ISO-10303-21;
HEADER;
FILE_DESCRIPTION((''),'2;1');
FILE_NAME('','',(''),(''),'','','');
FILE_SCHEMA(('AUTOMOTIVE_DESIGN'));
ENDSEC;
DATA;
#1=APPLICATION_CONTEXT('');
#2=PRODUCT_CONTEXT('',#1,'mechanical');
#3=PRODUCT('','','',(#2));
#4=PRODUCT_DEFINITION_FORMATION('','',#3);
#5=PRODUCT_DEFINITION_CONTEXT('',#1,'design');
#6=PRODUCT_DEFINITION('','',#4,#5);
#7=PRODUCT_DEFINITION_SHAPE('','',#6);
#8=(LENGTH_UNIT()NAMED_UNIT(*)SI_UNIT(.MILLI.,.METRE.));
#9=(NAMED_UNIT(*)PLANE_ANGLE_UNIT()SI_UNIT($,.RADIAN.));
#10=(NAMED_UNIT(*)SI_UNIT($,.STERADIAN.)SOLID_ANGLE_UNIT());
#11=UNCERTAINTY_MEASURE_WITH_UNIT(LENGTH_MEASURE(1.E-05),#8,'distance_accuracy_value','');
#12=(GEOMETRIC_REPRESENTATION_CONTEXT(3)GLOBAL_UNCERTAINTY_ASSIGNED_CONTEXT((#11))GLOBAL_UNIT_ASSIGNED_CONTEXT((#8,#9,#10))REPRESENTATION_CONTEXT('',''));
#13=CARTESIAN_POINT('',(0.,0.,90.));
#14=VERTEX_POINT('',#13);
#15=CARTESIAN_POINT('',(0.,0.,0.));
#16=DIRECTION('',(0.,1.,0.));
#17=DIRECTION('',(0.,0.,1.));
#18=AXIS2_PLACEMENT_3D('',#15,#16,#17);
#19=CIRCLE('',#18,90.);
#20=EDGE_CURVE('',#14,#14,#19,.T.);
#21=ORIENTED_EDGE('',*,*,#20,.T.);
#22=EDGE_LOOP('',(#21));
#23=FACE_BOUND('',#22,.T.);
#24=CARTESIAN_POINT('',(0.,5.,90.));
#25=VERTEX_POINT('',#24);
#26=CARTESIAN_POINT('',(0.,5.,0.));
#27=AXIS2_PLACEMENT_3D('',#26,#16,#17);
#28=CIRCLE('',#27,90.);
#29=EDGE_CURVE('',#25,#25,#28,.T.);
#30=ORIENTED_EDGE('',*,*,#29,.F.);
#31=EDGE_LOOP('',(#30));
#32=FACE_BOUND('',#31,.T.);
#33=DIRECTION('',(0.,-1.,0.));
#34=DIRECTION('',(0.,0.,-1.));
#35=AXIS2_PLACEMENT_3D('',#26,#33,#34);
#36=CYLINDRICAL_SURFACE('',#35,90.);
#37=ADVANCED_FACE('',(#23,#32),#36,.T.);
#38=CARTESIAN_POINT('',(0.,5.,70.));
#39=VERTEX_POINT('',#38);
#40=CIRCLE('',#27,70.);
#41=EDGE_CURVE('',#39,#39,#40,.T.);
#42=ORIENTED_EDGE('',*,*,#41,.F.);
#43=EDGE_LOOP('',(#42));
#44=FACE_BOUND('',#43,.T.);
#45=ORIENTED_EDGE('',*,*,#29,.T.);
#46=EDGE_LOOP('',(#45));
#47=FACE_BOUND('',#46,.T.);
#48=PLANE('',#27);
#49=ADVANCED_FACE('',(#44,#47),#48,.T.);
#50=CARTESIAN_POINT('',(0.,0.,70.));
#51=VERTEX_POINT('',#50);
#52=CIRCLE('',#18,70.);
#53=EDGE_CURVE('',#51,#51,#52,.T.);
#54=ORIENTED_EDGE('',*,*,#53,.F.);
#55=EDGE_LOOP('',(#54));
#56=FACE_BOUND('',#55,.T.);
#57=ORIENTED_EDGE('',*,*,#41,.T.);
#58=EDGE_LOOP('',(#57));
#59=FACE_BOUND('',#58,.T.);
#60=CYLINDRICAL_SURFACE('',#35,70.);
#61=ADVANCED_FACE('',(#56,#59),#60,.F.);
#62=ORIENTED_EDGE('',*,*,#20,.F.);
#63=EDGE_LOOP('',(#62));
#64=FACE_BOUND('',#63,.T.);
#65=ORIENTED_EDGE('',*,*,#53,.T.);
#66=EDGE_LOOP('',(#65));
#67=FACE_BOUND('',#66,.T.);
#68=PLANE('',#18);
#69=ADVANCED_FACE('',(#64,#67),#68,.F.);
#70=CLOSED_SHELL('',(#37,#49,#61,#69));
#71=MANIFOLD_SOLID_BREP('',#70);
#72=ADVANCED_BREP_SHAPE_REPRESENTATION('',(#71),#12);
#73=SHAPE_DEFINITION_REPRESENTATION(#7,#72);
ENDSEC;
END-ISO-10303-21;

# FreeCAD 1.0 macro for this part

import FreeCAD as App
import Part
import Sketcher
from FreeCAD import Vector

doc = App.newDocument("Part")
body = doc.addObject("PartDesign::Body", "Body")

# Sketch on XZ plane
sketch1 = doc.addObject("Sketcher::SketchObject", "Sketch")
body.addObject(sketch1)
sketch1.AttachmentSupport = (doc.XZ_Plane, [""])
sketch1.MapMode = "FlatFace"
sketch1.addGeometry(Part.Circle(Vector(0, 0, 0), Vector(0, 0, 1), 90), False)
sketch1.addGeometry(Part.Circle(Vector(0, 0, 0), Vector(0, 0, 1), 70), False)
sketch1.addConstraint(Sketcher.Constraint("Coincident", 0, 3, -1, 1))
sketch1.addConstraint(Sketcher.Constraint("Coincident", 1, 3, -1, 1))
sketch1.addConstraint(Sketcher.Constraint("Diameter", 0, 180.0))
sketch1.addConstraint(Sketcher.Constraint("Diameter", 1, 140.0))
pad1 = doc.addObject("PartDesign::Pad", "Pad")
body.addObject(pad1)
pad1.Profile = sketch1
pad1.Length = 5
pad1.Reversed = True

doc.recompute()
